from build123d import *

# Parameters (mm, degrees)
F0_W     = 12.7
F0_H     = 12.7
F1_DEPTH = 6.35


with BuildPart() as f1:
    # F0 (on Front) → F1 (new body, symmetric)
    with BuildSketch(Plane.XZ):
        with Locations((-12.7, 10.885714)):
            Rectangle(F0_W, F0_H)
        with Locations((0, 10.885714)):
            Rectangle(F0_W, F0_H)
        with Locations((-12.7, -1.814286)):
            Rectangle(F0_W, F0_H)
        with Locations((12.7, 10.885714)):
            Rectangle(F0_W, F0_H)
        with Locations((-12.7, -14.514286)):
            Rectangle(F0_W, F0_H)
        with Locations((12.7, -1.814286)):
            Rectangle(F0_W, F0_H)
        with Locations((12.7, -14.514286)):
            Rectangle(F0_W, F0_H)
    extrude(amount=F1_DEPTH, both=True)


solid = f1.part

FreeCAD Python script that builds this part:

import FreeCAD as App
import Part
import Sketcher

V = App.Vector
Q = App.Units.Quantity


def add_polygon(sketch, points):
    """Adds a closed chain of lines whose ends are joined by coincident constraints."""
    first, n = sketch.GeometryCount, len(points)
    for a, b in zip(points, points[1:] + points[:1]):
        sketch.addGeometry(Part.LineSegment(App.Vector(*a, 0), App.Vector(*b, 0)), False)
    for i in range(n):
        sketch.addConstraint(Sketcher.Constraint("Coincident", first + i, 2, first + (i + 1) % n, 1))

doc = App.newDocument("Part")
params = doc.addObject("Spreadsheet::Sheet", "Params")
for row, (alias, value) in enumerate([
    ("sketch1_height", "1 in"),
    ("sketch1_width", "0.5 in"),
    ("pad1_length", "0.5 in"),
], start=1):
    params.set(f"A{row}", alias)
    params.set(f"B{row}", "=" + value)
    params.setAlias(f"B{row}", alias)

body = doc.addObject("PartDesign::Body", "Body")

# Sketch on XZ plane
sketch1 = body.newObject("Sketcher::SketchObject", "Sketch")
sketch1.AttachmentSupport = (doc.getObject("XZ_Plane"), [""])
sketch1.MapMode = "FlatFace"
add_polygon(sketch1, [(-19, 17), (-19, -21), (-6, -21), (-6, 5), (6, 5), (6, -21), (19, -21), (19, 17)])  # lines 0-7
sketch1.addConstraint(Sketcher.Constraint("Vertical", 0))
sketch1.addConstraint(Sketcher.Constraint("Horizontal", 1))
sketch1.addConstraint(Sketcher.Constraint("Vertical", 2))
sketch1.addConstraint(Sketcher.Constraint("Horizontal", 3))
sketch1.addConstraint(Sketcher.Constraint("Vertical", 4))
sketch1.addConstraint(Sketcher.Constraint("Horizontal", 5))
sketch1.addConstraint(Sketcher.Constraint("Vertical", 6))
sketch1.addConstraint(Sketcher.Constraint("Horizontal", 7))
sketch1.addConstraint(Sketcher.Constraint("Symmetric", 1, 2, 4, 2, -2))
sketch1.addConstraint(Sketcher.Constraint("Equal", 1, 3))
sketch1.addConstraint(Sketcher.Constraint("Equal", 3, 5))
sketch1.addConstraint(Sketcher.Constraint("Equal", 7, 0))
sketch1.addConstraint(Sketcher.Constraint("DistanceY", 2, 1, 2, 2, Q("1 in")))
sketch1.addConstraint(Sketcher.Constraint("DistanceX", 1, 1, 1, 2, Q("0.5 in")))
sketch1.addConstraint(Sketcher.Constraint("DistanceY", 0, 2, -1, 1, 20.864286))
sketch1.setExpression("Constraints[20]", "Params.sketch1_height")
sketch1.setExpression("Constraints[21]", "Params.sketch1_width")
pad1 = body.newObject("PartDesign::Pad", "Pad")
pad1.Profile = sketch1
pad1.setExpression("Length", "Params.pad1_length")
pad1.Midplane = True

doc.recompute()
